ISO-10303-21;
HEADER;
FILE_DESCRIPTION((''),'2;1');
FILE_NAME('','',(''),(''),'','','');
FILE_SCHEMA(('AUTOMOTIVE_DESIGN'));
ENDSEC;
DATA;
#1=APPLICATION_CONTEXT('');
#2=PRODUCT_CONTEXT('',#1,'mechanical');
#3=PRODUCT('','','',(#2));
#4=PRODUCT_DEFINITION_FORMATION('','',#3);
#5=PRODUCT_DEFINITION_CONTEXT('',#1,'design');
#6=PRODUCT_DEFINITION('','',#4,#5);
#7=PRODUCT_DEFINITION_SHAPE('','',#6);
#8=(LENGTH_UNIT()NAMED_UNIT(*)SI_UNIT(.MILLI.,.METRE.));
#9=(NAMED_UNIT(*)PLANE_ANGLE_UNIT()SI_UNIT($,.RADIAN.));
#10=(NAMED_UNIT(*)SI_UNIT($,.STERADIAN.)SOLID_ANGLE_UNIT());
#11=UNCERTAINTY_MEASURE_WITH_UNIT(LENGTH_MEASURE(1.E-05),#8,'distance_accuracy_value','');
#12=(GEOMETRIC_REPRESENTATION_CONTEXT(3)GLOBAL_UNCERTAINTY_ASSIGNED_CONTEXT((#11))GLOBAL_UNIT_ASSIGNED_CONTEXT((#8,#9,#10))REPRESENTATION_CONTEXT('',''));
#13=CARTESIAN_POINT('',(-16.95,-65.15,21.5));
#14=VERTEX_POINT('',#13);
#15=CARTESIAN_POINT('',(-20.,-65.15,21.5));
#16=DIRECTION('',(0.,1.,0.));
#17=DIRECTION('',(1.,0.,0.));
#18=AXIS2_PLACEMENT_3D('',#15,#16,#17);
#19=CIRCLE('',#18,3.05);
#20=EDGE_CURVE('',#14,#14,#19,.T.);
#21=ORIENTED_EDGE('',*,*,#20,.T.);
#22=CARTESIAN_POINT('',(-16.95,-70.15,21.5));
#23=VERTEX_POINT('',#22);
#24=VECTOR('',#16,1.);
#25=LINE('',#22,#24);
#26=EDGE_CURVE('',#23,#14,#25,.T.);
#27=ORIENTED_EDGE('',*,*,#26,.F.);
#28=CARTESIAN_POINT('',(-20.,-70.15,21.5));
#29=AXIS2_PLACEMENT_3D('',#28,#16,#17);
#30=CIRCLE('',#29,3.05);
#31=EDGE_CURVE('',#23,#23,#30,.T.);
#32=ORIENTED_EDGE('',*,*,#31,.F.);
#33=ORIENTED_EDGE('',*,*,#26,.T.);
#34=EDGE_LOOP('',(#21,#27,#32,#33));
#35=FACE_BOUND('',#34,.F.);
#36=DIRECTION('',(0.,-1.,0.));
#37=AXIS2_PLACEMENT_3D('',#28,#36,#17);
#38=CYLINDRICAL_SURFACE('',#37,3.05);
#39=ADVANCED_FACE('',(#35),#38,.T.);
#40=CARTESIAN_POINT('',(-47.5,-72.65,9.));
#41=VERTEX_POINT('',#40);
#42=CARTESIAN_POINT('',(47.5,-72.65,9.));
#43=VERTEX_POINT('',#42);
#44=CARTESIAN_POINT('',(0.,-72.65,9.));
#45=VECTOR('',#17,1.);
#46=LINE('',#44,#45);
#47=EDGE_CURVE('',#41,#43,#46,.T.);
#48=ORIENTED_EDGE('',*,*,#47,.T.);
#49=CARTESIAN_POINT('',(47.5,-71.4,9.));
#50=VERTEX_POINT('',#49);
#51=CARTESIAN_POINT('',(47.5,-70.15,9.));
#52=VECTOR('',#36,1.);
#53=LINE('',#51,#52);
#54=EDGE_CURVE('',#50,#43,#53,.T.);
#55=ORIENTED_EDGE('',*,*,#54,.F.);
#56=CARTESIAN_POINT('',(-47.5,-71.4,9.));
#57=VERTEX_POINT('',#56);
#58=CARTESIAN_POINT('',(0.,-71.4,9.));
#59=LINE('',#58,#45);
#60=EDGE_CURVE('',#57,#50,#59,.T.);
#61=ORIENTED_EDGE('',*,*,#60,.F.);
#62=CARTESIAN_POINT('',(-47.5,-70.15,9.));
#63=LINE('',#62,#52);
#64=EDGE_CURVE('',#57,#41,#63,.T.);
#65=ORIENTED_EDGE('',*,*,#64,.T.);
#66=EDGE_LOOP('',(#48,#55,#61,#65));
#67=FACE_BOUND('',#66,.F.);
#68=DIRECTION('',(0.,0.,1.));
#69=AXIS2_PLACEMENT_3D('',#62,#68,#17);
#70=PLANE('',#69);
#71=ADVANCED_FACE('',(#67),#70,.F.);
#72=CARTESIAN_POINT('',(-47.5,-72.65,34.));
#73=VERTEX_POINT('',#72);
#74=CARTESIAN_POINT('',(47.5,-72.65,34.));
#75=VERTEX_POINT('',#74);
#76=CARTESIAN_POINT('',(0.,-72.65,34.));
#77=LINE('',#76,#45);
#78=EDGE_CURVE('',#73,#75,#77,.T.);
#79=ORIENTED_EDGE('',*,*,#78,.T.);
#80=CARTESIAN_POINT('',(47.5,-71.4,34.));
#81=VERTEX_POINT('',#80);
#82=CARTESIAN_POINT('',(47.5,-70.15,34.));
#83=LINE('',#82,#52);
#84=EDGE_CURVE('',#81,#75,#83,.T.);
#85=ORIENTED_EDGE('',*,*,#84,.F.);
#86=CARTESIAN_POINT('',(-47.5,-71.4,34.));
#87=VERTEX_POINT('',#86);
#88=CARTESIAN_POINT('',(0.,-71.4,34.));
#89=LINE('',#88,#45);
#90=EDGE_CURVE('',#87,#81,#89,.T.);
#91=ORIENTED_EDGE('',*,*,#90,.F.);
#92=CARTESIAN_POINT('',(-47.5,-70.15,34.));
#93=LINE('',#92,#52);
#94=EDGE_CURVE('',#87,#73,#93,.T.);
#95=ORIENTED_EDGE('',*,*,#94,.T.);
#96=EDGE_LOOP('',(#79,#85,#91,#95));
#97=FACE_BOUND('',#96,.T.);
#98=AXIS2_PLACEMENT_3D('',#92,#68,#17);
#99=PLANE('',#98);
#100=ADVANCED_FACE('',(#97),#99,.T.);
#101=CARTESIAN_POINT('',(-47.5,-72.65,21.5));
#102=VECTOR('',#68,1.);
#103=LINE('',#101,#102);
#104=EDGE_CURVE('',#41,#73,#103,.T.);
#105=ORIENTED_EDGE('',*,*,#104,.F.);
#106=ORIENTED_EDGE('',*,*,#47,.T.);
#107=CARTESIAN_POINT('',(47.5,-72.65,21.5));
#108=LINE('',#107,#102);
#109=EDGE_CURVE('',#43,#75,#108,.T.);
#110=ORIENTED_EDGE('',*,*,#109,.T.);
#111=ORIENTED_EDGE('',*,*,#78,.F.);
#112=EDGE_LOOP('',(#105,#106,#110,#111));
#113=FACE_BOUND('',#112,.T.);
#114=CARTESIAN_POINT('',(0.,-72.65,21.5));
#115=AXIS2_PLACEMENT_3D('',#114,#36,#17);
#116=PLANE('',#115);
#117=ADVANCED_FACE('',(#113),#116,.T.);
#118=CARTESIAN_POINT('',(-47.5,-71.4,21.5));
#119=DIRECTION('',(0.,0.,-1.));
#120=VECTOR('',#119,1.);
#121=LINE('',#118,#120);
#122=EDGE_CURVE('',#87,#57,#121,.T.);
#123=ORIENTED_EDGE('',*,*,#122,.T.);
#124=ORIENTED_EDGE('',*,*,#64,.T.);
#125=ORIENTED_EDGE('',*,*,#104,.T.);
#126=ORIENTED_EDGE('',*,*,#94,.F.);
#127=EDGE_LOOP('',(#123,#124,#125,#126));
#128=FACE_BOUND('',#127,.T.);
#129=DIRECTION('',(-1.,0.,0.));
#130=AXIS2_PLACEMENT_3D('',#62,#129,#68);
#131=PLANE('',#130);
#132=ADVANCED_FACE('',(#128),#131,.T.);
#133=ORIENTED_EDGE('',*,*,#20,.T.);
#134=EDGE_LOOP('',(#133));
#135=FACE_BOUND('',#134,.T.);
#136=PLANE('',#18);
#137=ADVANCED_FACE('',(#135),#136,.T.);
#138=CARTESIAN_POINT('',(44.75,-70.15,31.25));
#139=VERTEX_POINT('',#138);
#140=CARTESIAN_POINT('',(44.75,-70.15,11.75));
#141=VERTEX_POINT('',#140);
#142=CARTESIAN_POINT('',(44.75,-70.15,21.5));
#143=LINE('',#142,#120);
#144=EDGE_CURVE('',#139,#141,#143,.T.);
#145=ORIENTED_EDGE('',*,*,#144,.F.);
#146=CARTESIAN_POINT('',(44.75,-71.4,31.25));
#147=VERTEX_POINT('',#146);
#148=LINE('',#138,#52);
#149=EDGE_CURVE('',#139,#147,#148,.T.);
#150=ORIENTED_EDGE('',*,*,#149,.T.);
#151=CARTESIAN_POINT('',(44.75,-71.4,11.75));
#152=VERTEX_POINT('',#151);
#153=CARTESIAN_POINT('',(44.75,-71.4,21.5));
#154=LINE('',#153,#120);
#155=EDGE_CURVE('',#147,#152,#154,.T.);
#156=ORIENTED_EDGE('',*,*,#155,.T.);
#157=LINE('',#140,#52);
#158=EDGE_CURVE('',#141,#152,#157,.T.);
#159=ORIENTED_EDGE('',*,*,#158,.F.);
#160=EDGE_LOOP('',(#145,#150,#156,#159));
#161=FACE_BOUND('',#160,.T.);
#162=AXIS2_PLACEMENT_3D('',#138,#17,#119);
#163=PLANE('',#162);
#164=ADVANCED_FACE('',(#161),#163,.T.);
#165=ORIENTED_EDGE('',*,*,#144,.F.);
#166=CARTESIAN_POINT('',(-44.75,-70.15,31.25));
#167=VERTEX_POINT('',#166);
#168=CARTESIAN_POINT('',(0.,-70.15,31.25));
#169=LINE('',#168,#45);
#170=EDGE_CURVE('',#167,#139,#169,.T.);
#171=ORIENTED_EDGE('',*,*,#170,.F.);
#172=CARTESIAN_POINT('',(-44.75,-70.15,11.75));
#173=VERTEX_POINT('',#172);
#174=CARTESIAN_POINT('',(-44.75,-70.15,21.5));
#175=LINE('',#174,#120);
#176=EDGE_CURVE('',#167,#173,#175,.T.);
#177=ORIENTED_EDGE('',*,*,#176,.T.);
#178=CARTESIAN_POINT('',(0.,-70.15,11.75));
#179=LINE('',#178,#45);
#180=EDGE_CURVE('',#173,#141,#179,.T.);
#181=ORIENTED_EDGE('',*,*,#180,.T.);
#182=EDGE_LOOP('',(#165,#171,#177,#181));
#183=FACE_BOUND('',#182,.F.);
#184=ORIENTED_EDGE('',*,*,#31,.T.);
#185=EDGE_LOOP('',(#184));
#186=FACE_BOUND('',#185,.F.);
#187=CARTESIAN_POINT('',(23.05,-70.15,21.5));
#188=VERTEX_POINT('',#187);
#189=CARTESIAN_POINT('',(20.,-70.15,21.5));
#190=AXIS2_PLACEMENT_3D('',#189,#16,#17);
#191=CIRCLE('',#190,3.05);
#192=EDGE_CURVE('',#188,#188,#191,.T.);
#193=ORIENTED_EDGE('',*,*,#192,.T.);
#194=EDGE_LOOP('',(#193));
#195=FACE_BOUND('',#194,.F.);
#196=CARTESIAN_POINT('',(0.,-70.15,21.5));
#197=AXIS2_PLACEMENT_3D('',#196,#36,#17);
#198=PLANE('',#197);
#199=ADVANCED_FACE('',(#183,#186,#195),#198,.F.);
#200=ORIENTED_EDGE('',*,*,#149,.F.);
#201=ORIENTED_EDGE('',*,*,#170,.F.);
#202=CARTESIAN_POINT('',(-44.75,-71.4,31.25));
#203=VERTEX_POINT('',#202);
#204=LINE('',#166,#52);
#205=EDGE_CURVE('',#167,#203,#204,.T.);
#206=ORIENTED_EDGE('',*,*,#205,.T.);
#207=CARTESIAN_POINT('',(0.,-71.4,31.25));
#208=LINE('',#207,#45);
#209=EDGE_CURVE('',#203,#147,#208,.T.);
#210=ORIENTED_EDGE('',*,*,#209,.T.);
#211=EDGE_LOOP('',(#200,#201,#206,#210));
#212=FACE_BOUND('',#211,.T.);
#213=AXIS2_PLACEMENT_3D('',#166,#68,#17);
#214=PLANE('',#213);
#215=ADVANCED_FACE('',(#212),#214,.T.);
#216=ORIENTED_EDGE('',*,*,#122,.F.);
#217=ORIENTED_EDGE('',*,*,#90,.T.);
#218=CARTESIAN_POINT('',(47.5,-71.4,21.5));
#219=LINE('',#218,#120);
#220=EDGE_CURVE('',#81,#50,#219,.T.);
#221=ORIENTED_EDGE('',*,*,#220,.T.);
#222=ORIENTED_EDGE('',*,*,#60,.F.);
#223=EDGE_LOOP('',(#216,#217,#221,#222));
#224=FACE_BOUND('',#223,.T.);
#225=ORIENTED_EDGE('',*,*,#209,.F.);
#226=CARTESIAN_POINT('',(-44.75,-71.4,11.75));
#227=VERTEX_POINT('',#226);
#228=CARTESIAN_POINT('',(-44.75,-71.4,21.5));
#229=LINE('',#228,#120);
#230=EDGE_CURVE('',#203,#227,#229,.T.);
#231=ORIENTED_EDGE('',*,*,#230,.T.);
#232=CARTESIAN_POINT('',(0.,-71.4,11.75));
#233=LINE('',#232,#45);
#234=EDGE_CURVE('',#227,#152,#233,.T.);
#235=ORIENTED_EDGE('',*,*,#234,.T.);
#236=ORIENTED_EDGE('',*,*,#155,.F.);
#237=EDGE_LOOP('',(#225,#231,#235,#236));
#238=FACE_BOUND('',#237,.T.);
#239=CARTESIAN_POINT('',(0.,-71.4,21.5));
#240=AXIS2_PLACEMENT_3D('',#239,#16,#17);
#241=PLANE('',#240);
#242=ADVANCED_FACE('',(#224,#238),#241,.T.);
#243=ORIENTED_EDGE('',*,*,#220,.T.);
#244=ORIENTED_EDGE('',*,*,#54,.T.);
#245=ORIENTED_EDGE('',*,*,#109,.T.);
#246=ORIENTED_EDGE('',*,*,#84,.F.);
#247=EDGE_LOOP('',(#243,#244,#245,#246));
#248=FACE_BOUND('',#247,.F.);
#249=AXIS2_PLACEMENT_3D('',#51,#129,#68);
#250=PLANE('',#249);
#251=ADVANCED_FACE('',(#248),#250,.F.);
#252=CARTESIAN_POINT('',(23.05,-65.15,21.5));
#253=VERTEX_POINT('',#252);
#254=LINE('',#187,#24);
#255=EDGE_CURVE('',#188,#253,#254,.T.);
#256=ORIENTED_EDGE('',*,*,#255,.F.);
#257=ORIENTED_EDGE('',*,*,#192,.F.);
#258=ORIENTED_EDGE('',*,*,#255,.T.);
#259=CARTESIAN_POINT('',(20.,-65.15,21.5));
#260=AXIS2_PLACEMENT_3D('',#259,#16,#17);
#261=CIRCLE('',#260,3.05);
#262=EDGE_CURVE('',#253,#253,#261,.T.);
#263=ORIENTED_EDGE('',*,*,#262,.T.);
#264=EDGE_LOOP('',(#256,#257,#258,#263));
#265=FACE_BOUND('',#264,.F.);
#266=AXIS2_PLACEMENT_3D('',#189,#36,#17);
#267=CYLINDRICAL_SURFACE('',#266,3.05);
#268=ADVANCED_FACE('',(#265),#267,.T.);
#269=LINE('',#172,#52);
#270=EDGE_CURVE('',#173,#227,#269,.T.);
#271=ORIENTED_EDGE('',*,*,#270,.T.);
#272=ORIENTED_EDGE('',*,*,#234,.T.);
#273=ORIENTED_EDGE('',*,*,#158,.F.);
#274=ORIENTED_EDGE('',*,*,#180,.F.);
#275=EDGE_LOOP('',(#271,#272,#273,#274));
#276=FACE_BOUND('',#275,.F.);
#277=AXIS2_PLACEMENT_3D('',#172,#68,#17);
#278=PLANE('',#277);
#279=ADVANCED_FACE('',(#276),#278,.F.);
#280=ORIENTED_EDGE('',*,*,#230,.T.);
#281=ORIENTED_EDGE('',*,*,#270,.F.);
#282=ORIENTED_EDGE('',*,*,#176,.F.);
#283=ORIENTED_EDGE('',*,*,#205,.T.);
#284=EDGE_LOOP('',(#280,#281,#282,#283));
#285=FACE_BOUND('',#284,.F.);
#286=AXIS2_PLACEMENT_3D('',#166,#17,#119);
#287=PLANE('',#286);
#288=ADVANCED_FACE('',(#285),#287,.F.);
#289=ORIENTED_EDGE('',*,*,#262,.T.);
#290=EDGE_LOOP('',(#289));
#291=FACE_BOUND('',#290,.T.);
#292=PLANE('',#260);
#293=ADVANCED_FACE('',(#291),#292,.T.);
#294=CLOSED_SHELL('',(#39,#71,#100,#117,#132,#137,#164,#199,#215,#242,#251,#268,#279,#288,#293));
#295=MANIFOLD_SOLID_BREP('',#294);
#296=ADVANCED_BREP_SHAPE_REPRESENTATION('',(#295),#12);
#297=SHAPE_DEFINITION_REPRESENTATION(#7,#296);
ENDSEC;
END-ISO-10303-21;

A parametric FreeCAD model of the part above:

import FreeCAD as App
import Part
import Sketcher
Q = App.Units.Quantity


def add_polygon(sketch, points):
    """Adds a closed chain of lines whose ends are joined by coincident constraints."""
    first, n = sketch.GeometryCount, len(points)
    for a, b in zip(points, points[1:] + points[:1]):
        sketch.addGeometry(Part.LineSegment(App.Vector(*a, 0), App.Vector(*b, 0)), False)
    for i in range(n):
        sketch.addConstraint(Sketcher.Constraint("Coincident", first + i, 2, first + (i + 1) % n, 1))

doc = App.newDocument("Part")
params = doc.addObject("Spreadsheet::Sheet", "Params")
for row, (alias, value) in enumerate([
    ("sketch1_width", "95 mm"),
    ("sketch1_height", "25 mm"),
    ("pad1_length", "2.5 mm"),
    ("sketch2_diameter", "6.1 mm"),
    ("pad2_length", "5 mm"),
    ("sketch3_width", "95 mm"),
    ("sketch3_height", "25 mm"),
    ("sketch3_width2", "89.5 mm"),
    ("sketch3_height2", "19.5 mm"),
    ("pocket1_length", "1.25 mm"),
], start=1):
    params.set(f"A{row}", alias)
    params.set(f"B{row}", "=" + value)
    params.setAlias(f"B{row}", alias)

body = doc.addObject("PartDesign::Body", "Body")

sketch1 = body.newObject("Sketcher::SketchObject", "Sketch")
sketch1.AttachmentSupport = (doc.getObject("XZ_Plane"), [""])
sketch1.MapMode = "FlatFace"
add_polygon(sketch1, [(-48, 34), (-48, 9), (48, 9), (48, 34)])
sketch1.addConstraint([
    Sketcher.Constraint("Vertical", 0),
    Sketcher.Constraint("Horizontal", 1),
    Sketcher.Constraint("Vertical", 2),
    Sketcher.Constraint("Horizontal", 3),
    Sketcher.Constraint("DistanceX", 1, 1, 1, 2, Q("95 mm")),
    Sketcher.Constraint("DistanceY", 0, 2, 0, 1, Q("25 mm")),
    Sketcher.Constraint("DistanceY", -1, 1, 0, 2, Q("9 mm")),
    Sketcher.Constraint("DistanceX", 0, 2, -1, 1, Q("47.5 mm")),
])
sketch1.setExpression("Constraints[8]", "Params.sketch1_width")
sketch1.setExpression("Constraints[9]", "Params.sketch1_height")
pad1 = body.newObject("PartDesign::Pad", "Pad")
pad1.Profile = sketch1
pad1.setExpression("Length", "Params.pad1_length")

sketch2 = body.newObject("Sketcher::SketchObject", "Sketch001")
sketch2.AttachmentSupport = (doc.getObject("XZ_Plane"), [""])
sketch2.MapMode = "FlatFace"
sketch2.addGeometry([
    Part.Circle(App.Vector(-20, 21.5, 0), App.Vector(0, 0, 1), 3),
    Part.Circle(App.Vector(20, 21.5, 0), App.Vector(0, 0, 1), 3),
], False)
sketch2.addConstraint([
    Sketcher.Constraint("Equal", 0, 1),
    Sketcher.Constraint("Symmetric", 0, 3, 1, 3, -2),
    Sketcher.Constraint("Diameter", 0, Q("6.1 mm")),
    Sketcher.Constraint("DistanceX", 0, 3, -1, 1, Q("20 mm")),
    Sketcher.Constraint("DistanceY", -1, 1, 0, 3, Q("21.5 mm")),
])
sketch2.setExpression("Constraints[2]", "Params.sketch2_diameter")
pad2 = body.newObject("PartDesign::Pad", "Pad001")
pad2.Profile = sketch2
pad2.setExpression("Length", "Params.pad2_length")
pad2.Reversed = True

sketch3 = body.newObject("Sketcher::SketchObject", "Sketch002")
sketch3.AttachmentSupport = (doc.getObject("XZ_Plane"), [""])
sketch3.MapMode = "FlatFace"
add_polygon(sketch3, [(-48, 9), (-48, 34), (48, 34), (48, 9)])
add_polygon(sketch3, [(45, 31), (-45, 31), (-45, 12), (45, 12)])
sketch3.addConstraint([
    Sketcher.Constraint("Vertical", 0),
    Sketcher.Constraint("Horizontal", 1),
    Sketcher.Constraint("Vertical", 2),
    Sketcher.Constraint("Horizontal", 3),
    Sketcher.Constraint("Horizontal", 4),
    Sketcher.Constraint("Vertical", 5),
    Sketcher.Constraint("Horizontal", 6),
    Sketcher.Constraint("Vertical", 7),
    Sketcher.Constraint("DistanceX", 1, 1, 1, 2, Q("95 mm")),
    Sketcher.Constraint("DistanceY", 0, 1, 0, 2, Q("25 mm")),
    Sketcher.Constraint("DistanceX", 4, 2, 4, 1, Q("89.5 mm")),
    Sketcher.Constraint("DistanceY", 5, 2, 5, 1, Q("19.5 mm")),
    Sketcher.Constraint("DistanceY", -1, 1, 0, 2, Q("34 mm")),
    Sketcher.Constraint("DistanceX", 0, 2, -1, 1, Q("47.5 mm")),
    Sketcher.Constraint("DistanceX", 4, 2, -1, 1, Q("44.75 mm")),
    Sketcher.Constraint("DistanceY", -1, 1, 4, 2, Q("31.25 mm")),
])
sketch3.setExpression("Constraints[16]", "Params.sketch3_width")
sketch3.setExpression("Constraints[17]", "Params.sketch3_height")
sketch3.setExpression("Constraints[18]", "Params.sketch3_width2")
sketch3.setExpression("Constraints[19]", "Params.sketch3_height2")
pocket1 = body.newObject("PartDesign::Pocket", "Pocket")
pocket1.Profile = sketch3
pocket1.setExpression("Length", "Params.pocket1_length")
pocket1.Reversed = True
body2 = doc.addObject("PartDesign::Body", "Body001")
doc.recompute()

body.Placement = App.Placement(App.Vector(0, -70.15, 0), App.Rotation(App.Vector(0, 0, 1), 0))
boolean = body2.newObject("PartDesign::Boolean", "Boolean")
boolean.Type = "Fuse"
boolean.addObjects([body])

doc.recompute()
